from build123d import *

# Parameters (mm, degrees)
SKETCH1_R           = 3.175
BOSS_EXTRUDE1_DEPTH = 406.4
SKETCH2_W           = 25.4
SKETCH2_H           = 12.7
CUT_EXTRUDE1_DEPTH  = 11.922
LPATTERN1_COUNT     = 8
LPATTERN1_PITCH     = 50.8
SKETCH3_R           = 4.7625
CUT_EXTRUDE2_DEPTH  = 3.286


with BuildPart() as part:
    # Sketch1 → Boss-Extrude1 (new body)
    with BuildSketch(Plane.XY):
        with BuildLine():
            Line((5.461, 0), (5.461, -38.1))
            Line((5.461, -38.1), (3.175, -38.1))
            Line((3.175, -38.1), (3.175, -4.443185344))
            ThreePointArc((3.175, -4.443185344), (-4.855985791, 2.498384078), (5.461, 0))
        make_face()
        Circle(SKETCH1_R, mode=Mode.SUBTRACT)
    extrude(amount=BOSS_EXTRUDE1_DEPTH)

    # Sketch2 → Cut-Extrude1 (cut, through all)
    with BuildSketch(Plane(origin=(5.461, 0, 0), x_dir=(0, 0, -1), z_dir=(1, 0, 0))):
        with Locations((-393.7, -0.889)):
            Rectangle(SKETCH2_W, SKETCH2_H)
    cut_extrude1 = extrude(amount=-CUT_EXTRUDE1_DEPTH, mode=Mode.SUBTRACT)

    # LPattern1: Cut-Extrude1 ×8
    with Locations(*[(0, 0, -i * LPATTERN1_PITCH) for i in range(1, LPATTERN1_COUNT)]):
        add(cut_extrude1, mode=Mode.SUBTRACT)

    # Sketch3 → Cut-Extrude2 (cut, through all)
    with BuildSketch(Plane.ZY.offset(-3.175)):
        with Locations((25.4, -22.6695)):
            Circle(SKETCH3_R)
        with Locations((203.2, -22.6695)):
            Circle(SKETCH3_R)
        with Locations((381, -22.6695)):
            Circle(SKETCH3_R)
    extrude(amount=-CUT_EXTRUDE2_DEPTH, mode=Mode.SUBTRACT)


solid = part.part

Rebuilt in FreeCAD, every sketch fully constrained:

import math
import FreeCAD as App
import Part
import Sketcher
Q = App.Units.Quantity


def add_polygon(sketch, points):
    """Adds a closed chain of lines whose ends are joined by coincident constraints."""
    first, n = sketch.GeometryCount, len(points)
    for a, b in zip(points, points[1:] + points[:1]):
        sketch.addGeometry(Part.LineSegment(App.Vector(*a, 0), App.Vector(*b, 0)), False)
    for i in range(n):
        sketch.addConstraint(Sketcher.Constraint("Coincident", first + i, 2, first + (i + 1) % n, 1))

doc = App.newDocument("Part")
body = doc.addObject("PartDesign::Body", "Body")

# Sketch on XY plane
sketch1 = doc.addObject("Sketcher::SketchObject", "Sketch")
body.addObject(sketch1)
sketch1.AttachmentSupport = (doc.XY_Plane, [""])
sketch1.MapMode = "FlatFace"
sketch1.addGeometry(Part.LineSegment(App.Vector(5.5, -38.1, 0), App.Vector(5.5, 0, 0)), False)
sketch1.addGeometry(Part.ArcOfCircle(Part.Circle(App.Vector(0, 0, 0), App.Vector(0, 0, 1), 5.5), math.radians(0), math.radians(306)), False)
sketch1.addGeometry(Part.LineSegment(App.Vector(3.2, -4.4, 0), App.Vector(3.2, -38.1, 0)), False)
sketch1.addGeometry(Part.LineSegment(App.Vector(3.2, -38.1, 0), App.Vector(5.5, -38.1, 0)), False)
sketch1.addGeometry(Part.Circle(App.Vector(0, 0, 0), App.Vector(0, 0, 1), 3.2), False)
sketch1.addConstraint(Sketcher.Constraint("Tangent", 0, 2, 1, 1))
sketch1.addConstraint(Sketcher.Constraint("Coincident", 1, 2, 2, 1))
sketch1.addConstraint(Sketcher.Constraint("Coincident", 2, 2, 3, 1))
sketch1.addConstraint(Sketcher.Constraint("Coincident", 3, 2, 0, 1))
sketch1.addConstraint(Sketcher.Constraint("Vertical", 0))
sketch1.addConstraint(Sketcher.Constraint("Vertical", 2))
sketch1.addConstraint(Sketcher.Constraint("Horizontal", 3))
sketch1.addConstraint(Sketcher.Constraint("Coincident", 1, 3, -1, 1))
sketch1.addConstraint(Sketcher.Constraint("Coincident", 4, 3, -1, 1))
sketch1.addConstraint(Sketcher.Constraint("Diameter", 4, Q("0.25 in")))
sketch1.addConstraint(Sketcher.Constraint("DistanceY", 0, 1, 0, 2, Q("1.5 in")))
sketch1.addConstraint(Sketcher.Constraint("Radius", 1, Q("0.215 in")))
sketch1.addConstraint(Sketcher.Constraint("DistanceX", 3, 1, 3, 2, Q("0.09 in")))
pad1 = doc.addObject("PartDesign::Pad", "Pad")
body.addObject(pad1)
pad1.Profile = sketch1
pad1.Length = Q("16 in")

# Sketch on YZ plane
sketch2 = doc.addObject("Sketcher::SketchObject", "Sketch001")
body.addObject(sketch2)
sketch2.AttachmentSupport = (doc.YZ_Plane, [""])
sketch2.MapMode = "FlatFace"
sketch2.AttachmentOffset = App.Placement(App.Vector(0, 0, 0.215 * 25.4), App.Rotation())
add_polygon(sketch2, [(5, 406), (-7, 406), (-7, 381), (5, 381)])  # lines 0-3
sketch2.addConstraint(Sketcher.Constraint("Horizontal", 0))
sketch2.addConstraint(Sketcher.Constraint("Vertical", 1))
sketch2.addConstraint(Sketcher.Constraint("Horizontal", 2))
sketch2.addConstraint(Sketcher.Constraint("Vertical", 3))
sketch2.addConstraint(Sketcher.Constraint("DistanceY", 1, 2, 1, 1, Q("1 in")))
sketch2.addConstraint(Sketcher.Constraint("DistanceX", 0, 2, 0, 1, Q("0.5 in")))
sketch2.addConstraint(Sketcher.Constraint("DistanceY", -1, 1, 0, 2, Q("16 in")))
sketch2.addConstraint(Sketcher.Constraint("DistanceX", 0, 2, -1, 1, Q("0.285 in")))
pocket1 = doc.addObject("PartDesign::Pocket", "Pocket")
body.addObject(pocket1)
pocket1.Profile = sketch2
pocket1.Type = "ThroughAll"
doc.recompute()

linearpattern = doc.addObject("PartDesign::LinearPattern", "LinearPattern")
body.addObject(linearpattern)
linearpattern.Originals = [pocket1]
linearpattern.Direction = (doc.Z_Axis, [""])
linearpattern.Mode = "offset"
linearpattern.Offset = Q("2 in")
linearpattern.Occurrences = 8
linearpattern.Reversed = True
body.Tip = linearpattern

# Sketch on YZ plane
sketch3 = doc.addObject("Sketcher::SketchObject", "Sketch002")
body.addObject(sketch3)
sketch3.AttachmentSupport = (doc.YZ_Plane, [""])
sketch3.MapMode = "FlatFace"
sketch3.AttachmentOffset = App.Placement(App.Vector(0, 0, 0.125 * 25.4), App.Rotation())
sketch3.addGeometry(Part.Circle(App.Vector(-22.7, 25.4, 0), App.Vector(0, 0, 1), 4.8), False)
sketch3.addGeometry(Part.Circle(App.Vector(-22.7, 203.2, 0), App.Vector(0, 0, 1), 4.8), False)
sketch3.addGeometry(Part.Circle(App.Vector(-22.7, 381, 0), App.Vector(0, 0, 1), 4.8), False)
sketch3.addConstraint(Sketcher.Constraint("Equal", 0, 1))
sketch3.addConstraint(Sketcher.Constraint("Equal", 1, 2))
sketch3.addConstraint(Sketcher.Constraint("Vertical", 0, 3, 1, 3))
sketch3.addConstraint(Sketcher.Constraint("Vertical", 1, 3, 2, 3))
sketch3.addConstraint(Sketcher.Constraint("Diameter", 0, Q("0.375 in")))
sketch3.addConstraint(Sketcher.Constraint("DistanceY", -1, 1, 0, 3, Q("1 in")))
sketch3.addConstraint(Sketcher.Constraint("DistanceY", -1, 1, 1, 3, Q("8 in")))
sketch3.addConstraint(Sketcher.Constraint("DistanceY", -1, 1, 2, 3, Q("15 in")))
sketch3.addConstraint(Sketcher.Constraint("DistanceX", 0, 3, -1, 1, Q("0.8925 in")))
pocket2 = doc.addObject("PartDesign::Pocket", "Pocket001")
body.addObject(pocket2)
pocket2.Profile = sketch3
pocket2.Type = "ThroughAll"
pocket2.Reversed = True

doc.recompute()
